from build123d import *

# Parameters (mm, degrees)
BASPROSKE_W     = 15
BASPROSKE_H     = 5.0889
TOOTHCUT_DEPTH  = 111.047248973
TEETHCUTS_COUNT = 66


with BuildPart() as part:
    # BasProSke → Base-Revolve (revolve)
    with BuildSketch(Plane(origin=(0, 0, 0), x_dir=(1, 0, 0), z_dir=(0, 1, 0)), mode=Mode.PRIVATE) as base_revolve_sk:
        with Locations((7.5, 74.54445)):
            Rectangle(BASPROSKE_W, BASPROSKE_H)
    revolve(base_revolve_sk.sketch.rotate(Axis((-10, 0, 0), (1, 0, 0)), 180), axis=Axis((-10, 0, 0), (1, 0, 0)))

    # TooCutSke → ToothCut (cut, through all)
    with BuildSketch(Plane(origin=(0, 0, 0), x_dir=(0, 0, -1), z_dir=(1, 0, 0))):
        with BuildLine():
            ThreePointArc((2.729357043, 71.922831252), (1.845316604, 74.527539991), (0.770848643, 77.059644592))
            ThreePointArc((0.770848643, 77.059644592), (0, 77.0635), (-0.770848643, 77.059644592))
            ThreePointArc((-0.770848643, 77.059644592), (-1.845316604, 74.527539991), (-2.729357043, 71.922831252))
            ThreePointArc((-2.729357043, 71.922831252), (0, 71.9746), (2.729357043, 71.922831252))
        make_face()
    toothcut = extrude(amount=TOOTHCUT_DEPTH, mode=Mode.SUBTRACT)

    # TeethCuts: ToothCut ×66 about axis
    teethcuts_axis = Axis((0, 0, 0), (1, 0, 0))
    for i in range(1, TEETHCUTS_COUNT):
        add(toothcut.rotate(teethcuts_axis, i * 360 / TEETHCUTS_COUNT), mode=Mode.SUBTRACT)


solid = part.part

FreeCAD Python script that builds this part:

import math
import FreeCAD as App
import Part
import Sketcher
from FreeCAD import Vector

doc = App.newDocument("Part")
body = doc.addObject("PartDesign::Body", "Body")

# Sketch on XZ plane
sketch1 = body.newObject("Sketcher::SketchObject", "Sketch")
sketch1.AttachmentSupport = (doc.getObject("XZ_Plane"), [""])
sketch1.MapMode = "FlatFace"
sketch1.addGeometry(Part.LineSegment(Vector(0, -77.0889, 0), Vector(0, -72, 0)), False)
sketch1.addGeometry(Part.LineSegment(Vector(0, -72, 0), Vector(15, -72, 0)), False)
sketch1.addGeometry(Part.LineSegment(Vector(15, -72, 0), Vector(15, -77.0889, 0)), False)
sketch1.addGeometry(Part.LineSegment(Vector(15, -77.0889, 0), Vector(0, -77.0889, 0)), False)
sketch1.addConstraint(Sketcher.Constraint("Coincident", 0, 2, 1, 1))
sketch1.addConstraint(Sketcher.Constraint("Coincident", 1, 2, 2, 1))
sketch1.addConstraint(Sketcher.Constraint("Coincident", 2, 2, 3, 1))
sketch1.addConstraint(Sketcher.Constraint("Coincident", 3, 2, 0, 1))
sketch1.addConstraint(Sketcher.Constraint("Vertical", 0))
sketch1.addConstraint(Sketcher.Constraint("Horizontal", 1))
sketch1.addConstraint(Sketcher.Constraint("Vertical", 2))
sketch1.addConstraint(Sketcher.Constraint("Horizontal", 3))
sketch1.addConstraint(Sketcher.Constraint("PointOnObject", 0, 2, -2))
sketch1.addConstraint(Sketcher.Constraint("DistanceX", 1, 1, 1, 2, 15.0))
sketch1.addConstraint(Sketcher.Constraint("DistanceY", 0, 2, -1, 1, 72.0))
sketch1.addConstraint(Sketcher.Constraint("DistanceY", 0, 1, 0, 2, 5.0889))
revolution = body.newObject("PartDesign::Revolution", "Revolution")
revolution.Profile = sketch1
revolution.ReferenceAxis = (sketch1, ["H_Axis"])
revolution.Angle = 360

# Sketch on YZ plane
sketch2 = body.newObject("Sketcher::SketchObject", "Sketch001")
sketch2.AttachmentSupport = (doc.getObject("YZ_Plane"), [""])
sketch2.MapMode = "FlatFace"
sketch2.addGeometry(Part.ArcOfCircle(Part.Circle(Vector(61.301618, 32.843884, 0), Vector(0, 0, 1), 37.125), math.radians(-73.37579), math.radians(-64.8836)), False)
sketch2.addGeometry(Part.ArcOfCircle(Part.Circle(Vector(-0.000003, 0, 0), Vector(0, 0, 1), 77.063503), math.radians(-0.573126), math.radians(0.573126)), False)
sketch2.addGeometry(Part.ArcOfCircle(Part.Circle(Vector(61.301618, -32.843884, 0), Vector(0, 0, 1), 37.125), math.radians(64.8836), math.radians(73.37579)), False)
sketch2.addGeometry(Part.ArcOfCircle(Part.Circle(Vector(0, 0, 0), Vector(0, 0, 1), 71.9746), math.radians(-2.173241), math.radians(2.173241)), False)
sketch2.addConstraint(Sketcher.Constraint("Coincident", 0, 2, 1, 1))
sketch2.addConstraint(Sketcher.Constraint("Coincident", 1, 2, 2, 1))
sketch2.addConstraint(Sketcher.Constraint("Coincident", 2, 2, 3, 2))
sketch2.addConstraint(Sketcher.Constraint("Coincident", 3, 1, 0, 1))
sketch2.addConstraint(Sketcher.Constraint("Coincident", 1, 3, -1, 1))
sketch2.addConstraint(Sketcher.Constraint("Coincident", 3, 3, -1, 1))
sketch2.addConstraint(Sketcher.Constraint("Equal", 0, 2))
sketch2.addConstraint(Sketcher.Constraint("Symmetric", 0, 3, 2, 3, -1))
sketch2.addConstraint(Sketcher.Constraint("Radius", 0, 37.125))
sketch2.addConstraint(Sketcher.Constraint("Radius", 3, 71.9746))
sketch2.addConstraint(Sketcher.Constraint("Radius", 1, 77.063503))
sketch2.addConstraint(Sketcher.Constraint("DistanceX", -1, 1, 0, 3, 61.301618))
sketch2.addConstraint(Sketcher.Constraint("DistanceY", 0, 2, -1, 1, 0.770849))
pocket1 = body.newObject("PartDesign::Pocket", "Pocket")
pocket1.Profile = sketch2
pocket1.Type = "ThroughAll"
pocket1.Reversed = True
doc.recompute()

polarpattern = body.newObject("PartDesign::PolarPattern", "PolarPattern")
polarpattern.Originals = [pocket1]
polarpattern.Axis = (doc.getObject("X_Axis"), [""])
polarpattern.Angle = 360
polarpattern.Occurrences = 66
body.Tip = polarpattern

doc.recompute()
